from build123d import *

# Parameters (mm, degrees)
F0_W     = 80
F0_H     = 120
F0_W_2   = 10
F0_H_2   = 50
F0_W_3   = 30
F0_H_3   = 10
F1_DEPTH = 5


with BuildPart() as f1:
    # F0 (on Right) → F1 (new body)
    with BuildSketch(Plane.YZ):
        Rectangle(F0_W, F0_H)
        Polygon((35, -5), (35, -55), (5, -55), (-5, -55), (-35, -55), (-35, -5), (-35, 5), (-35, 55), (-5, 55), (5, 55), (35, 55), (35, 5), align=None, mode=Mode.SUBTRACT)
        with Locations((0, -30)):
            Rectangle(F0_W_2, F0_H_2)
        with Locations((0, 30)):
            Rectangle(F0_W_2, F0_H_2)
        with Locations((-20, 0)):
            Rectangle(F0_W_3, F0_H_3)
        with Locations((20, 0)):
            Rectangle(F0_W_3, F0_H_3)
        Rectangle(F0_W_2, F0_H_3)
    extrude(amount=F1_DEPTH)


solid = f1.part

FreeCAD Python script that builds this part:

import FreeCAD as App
import Part
import Sketcher

doc = App.newDocument("Part")
params = doc.addObject("Spreadsheet::Sheet", "Params")
for row, (alias, value) in enumerate([
    ("sketch1_width", "80 mm"),
    ("sketch1_width2", "30 mm"),
    ("sketch1_height", "120 mm"),
    ("sketch1_height2", "50 mm"),
    ("pad1_length", "5 mm"),
], start=1):
    params.set(f"A{row}", alias)
    params.set(f"B{row}", "=" + value)
    params.setAlias(f"B{row}", alias)

body = doc.addObject("PartDesign::Body", "Body")

# Sketch on YZ plane
sketch1 = doc.addObject("Sketcher::SketchObject", "Sketch")
body.addObject(sketch1)
sketch1.AttachmentSupport = (doc.YZ_Plane, [""])
sketch1.MapMode = "FlatFace"
sketch1.addGeometry(Part.LineSegment(App.Vector(-40, 60, 0), App.Vector(-40, -60, 0)), False)
sketch1.addGeometry(Part.LineSegment(App.Vector(-40, -60, 0), App.Vector(40, -60, 0)), False)
sketch1.addGeometry(Part.LineSegment(App.Vector(40, -60, 0), App.Vector(40, 60, 0)), False)
sketch1.addGeometry(Part.LineSegment(App.Vector(40, 60, 0), App.Vector(-40, 60, 0)), False)
sketch1.addGeometry(Part.LineSegment(App.Vector(-5, -5, 0), App.Vector(-5, -55, 0)), False)
sketch1.addGeometry(Part.LineSegment(App.Vector(-5, -55, 0), App.Vector(-35, -55, 0)), False)
sketch1.addGeometry(Part.LineSegment(App.Vector(-35, -55, 0), App.Vector(-35, -5, 0)), False)
sketch1.addGeometry(Part.LineSegment(App.Vector(-35, -5, 0), App.Vector(-5, -5, 0)), False)
sketch1.addGeometry(Part.LineSegment(App.Vector(5, -55, 0), App.Vector(5, -5, 0)), False)
sketch1.addGeometry(Part.LineSegment(App.Vector(5, -5, 0), App.Vector(35, -5, 0)), False)
sketch1.addGeometry(Part.LineSegment(App.Vector(35, -5, 0), App.Vector(35, -55, 0)), False)
sketch1.addGeometry(Part.LineSegment(App.Vector(35, -55, 0), App.Vector(5, -55, 0)), False)
sketch1.addGeometry(Part.LineSegment(App.Vector(-5, 55, 0), App.Vector(-5, 5, 0)), False)
sketch1.addGeometry(Part.LineSegment(App.Vector(-5, 5, 0), App.Vector(-35, 5, 0)), False)
sketch1.addGeometry(Part.LineSegment(App.Vector(-35, 5, 0), App.Vector(-35, 55, 0)), False)
sketch1.addGeometry(Part.LineSegment(App.Vector(-35, 55, 0), App.Vector(-5, 55, 0)), False)
sketch1.addGeometry(Part.LineSegment(App.Vector(35, 5, 0), App.Vector(5, 5, 0)), False)
sketch1.addGeometry(Part.LineSegment(App.Vector(5, 5, 0), App.Vector(5, 55, 0)), False)
sketch1.addGeometry(Part.LineSegment(App.Vector(5, 55, 0), App.Vector(35, 55, 0)), False)
sketch1.addGeometry(Part.LineSegment(App.Vector(35, 55, 0), App.Vector(35, 5, 0)), False)
sketch1.addConstraint(Sketcher.Constraint("Coincident", 0, 2, 1, 1))
sketch1.addConstraint(Sketcher.Constraint("Coincident", 1, 2, 2, 1))
sketch1.addConstraint(Sketcher.Constraint("Coincident", 2, 2, 3, 1))
sketch1.addConstraint(Sketcher.Constraint("Coincident", 3, 2, 0, 1))
sketch1.addConstraint(Sketcher.Constraint("Coincident", 4, 2, 5, 1))
sketch1.addConstraint(Sketcher.Constraint("Coincident", 5, 2, 6, 1))
sketch1.addConstraint(Sketcher.Constraint("Coincident", 6, 2, 7, 1))
sketch1.addConstraint(Sketcher.Constraint("Coincident", 7, 2, 4, 1))
sketch1.addConstraint(Sketcher.Constraint("Coincident", 8, 2, 9, 1))
sketch1.addConstraint(Sketcher.Constraint("Coincident", 9, 2, 10, 1))
sketch1.addConstraint(Sketcher.Constraint("Coincident", 10, 2, 11, 1))
sketch1.addConstraint(Sketcher.Constraint("Coincident", 11, 2, 8, 1))
sketch1.addConstraint(Sketcher.Constraint("Coincident", 12, 2, 13, 1))
sketch1.addConstraint(Sketcher.Constraint("Coincident", 13, 2, 14, 1))
sketch1.addConstraint(Sketcher.Constraint("Coincident", 14, 2, 15, 1))
sketch1.addConstraint(Sketcher.Constraint("Coincident", 15, 2, 12, 1))
sketch1.addConstraint(Sketcher.Constraint("Coincident", 16, 2, 17, 1))
sketch1.addConstraint(Sketcher.Constraint("Coincident", 17, 2, 18, 1))
sketch1.addConstraint(Sketcher.Constraint("Coincident", 18, 2, 19, 1))
sketch1.addConstraint(Sketcher.Constraint("Coincident", 19, 2, 16, 1))
sketch1.addConstraint(Sketcher.Constraint("Vertical", 0))
sketch1.addConstraint(Sketcher.Constraint("Horizontal", 1))
sketch1.addConstraint(Sketcher.Constraint("Vertical", 2))
sketch1.addConstraint(Sketcher.Constraint("Horizontal", 3))
sketch1.addConstraint(Sketcher.Constraint("Vertical", 4))
sketch1.addConstraint(Sketcher.Constraint("Horizontal", 5))
sketch1.addConstraint(Sketcher.Constraint("Vertical", 6))
sketch1.addConstraint(Sketcher.Constraint("Horizontal", 7))
sketch1.addConstraint(Sketcher.Constraint("Vertical", 8))
sketch1.addConstraint(Sketcher.Constraint("Horizontal", 9))
sketch1.addConstraint(Sketcher.Constraint("Vertical", 10))
sketch1.addConstraint(Sketcher.Constraint("Horizontal", 11))
sketch1.addConstraint(Sketcher.Constraint("Vertical", 12))
sketch1.addConstraint(Sketcher.Constraint("Horizontal", 13))
sketch1.addConstraint(Sketcher.Constraint("Vertical", 14))
sketch1.addConstraint(Sketcher.Constraint("Horizontal", 15))
sketch1.addConstraint(Sketcher.Constraint("Horizontal", 16))
sketch1.addConstraint(Sketcher.Constraint("Vertical", 17))
sketch1.addConstraint(Sketcher.Constraint("Horizontal", 18))
sketch1.addConstraint(Sketcher.Constraint("Vertical", 19))
sketch1.addConstraint(Sketcher.Constraint("Symmetric", 0, 2, 2, 2, -1, 1))
sketch1.addConstraint(Sketcher.Constraint("Symmetric", 8, 2, 12, 2, -1, 1))
sketch1.addConstraint(Sketcher.Constraint("Symmetric", 10, 2, 14, 2, -1, 1))
sketch1.addConstraint(Sketcher.Constraint("Symmetric", 7, 2, 16, 2, -1, 1))
sketch1.addConstraint(Sketcher.Constraint("Symmetric", 5, 2, 18, 2, -1, 1))
sketch1.addConstraint(Sketcher.Constraint("Symmetric", 7, 2, 8, 2, -2))
sketch1.addConstraint(Sketcher.Constraint("Symmetric", 5, 2, 10, 2, -2))
sketch1.addConstraint(Sketcher.Constraint("DistanceX", 1, 1, 1, 2, 80.0))
sketch1.addConstraint(Sketcher.Constraint("DistanceX", 5, 2, 5, 1, 30.0))
sketch1.addConstraint(Sketcher.Constraint("DistanceY", 0, 2, 0, 1, 120.0))
sketch1.addConstraint(Sketcher.Constraint("DistanceY", 4, 2, 4, 1, 50.0))
sketch1.addConstraint(Sketcher.Constraint("DistanceX", 4, 2, -1, 1, 5.0))
sketch1.addConstraint(Sketcher.Constraint("DistanceY", 4, 2, -1, 1, 55.0))
sketch1.setExpression("Constraints[47]", "Params.sketch1_width")
sketch1.setExpression("Constraints[48]", "Params.sketch1_width2")
sketch1.setExpression("Constraints[49]", "Params.sketch1_height")
sketch1.setExpression("Constraints[50]", "Params.sketch1_height2")
pad1 = doc.addObject("PartDesign::Pad", "Pad")
body.addObject(pad1)
pad1.Profile = sketch1
pad1.setExpression("Length", "Params.pad1_length")

doc.recompute()
